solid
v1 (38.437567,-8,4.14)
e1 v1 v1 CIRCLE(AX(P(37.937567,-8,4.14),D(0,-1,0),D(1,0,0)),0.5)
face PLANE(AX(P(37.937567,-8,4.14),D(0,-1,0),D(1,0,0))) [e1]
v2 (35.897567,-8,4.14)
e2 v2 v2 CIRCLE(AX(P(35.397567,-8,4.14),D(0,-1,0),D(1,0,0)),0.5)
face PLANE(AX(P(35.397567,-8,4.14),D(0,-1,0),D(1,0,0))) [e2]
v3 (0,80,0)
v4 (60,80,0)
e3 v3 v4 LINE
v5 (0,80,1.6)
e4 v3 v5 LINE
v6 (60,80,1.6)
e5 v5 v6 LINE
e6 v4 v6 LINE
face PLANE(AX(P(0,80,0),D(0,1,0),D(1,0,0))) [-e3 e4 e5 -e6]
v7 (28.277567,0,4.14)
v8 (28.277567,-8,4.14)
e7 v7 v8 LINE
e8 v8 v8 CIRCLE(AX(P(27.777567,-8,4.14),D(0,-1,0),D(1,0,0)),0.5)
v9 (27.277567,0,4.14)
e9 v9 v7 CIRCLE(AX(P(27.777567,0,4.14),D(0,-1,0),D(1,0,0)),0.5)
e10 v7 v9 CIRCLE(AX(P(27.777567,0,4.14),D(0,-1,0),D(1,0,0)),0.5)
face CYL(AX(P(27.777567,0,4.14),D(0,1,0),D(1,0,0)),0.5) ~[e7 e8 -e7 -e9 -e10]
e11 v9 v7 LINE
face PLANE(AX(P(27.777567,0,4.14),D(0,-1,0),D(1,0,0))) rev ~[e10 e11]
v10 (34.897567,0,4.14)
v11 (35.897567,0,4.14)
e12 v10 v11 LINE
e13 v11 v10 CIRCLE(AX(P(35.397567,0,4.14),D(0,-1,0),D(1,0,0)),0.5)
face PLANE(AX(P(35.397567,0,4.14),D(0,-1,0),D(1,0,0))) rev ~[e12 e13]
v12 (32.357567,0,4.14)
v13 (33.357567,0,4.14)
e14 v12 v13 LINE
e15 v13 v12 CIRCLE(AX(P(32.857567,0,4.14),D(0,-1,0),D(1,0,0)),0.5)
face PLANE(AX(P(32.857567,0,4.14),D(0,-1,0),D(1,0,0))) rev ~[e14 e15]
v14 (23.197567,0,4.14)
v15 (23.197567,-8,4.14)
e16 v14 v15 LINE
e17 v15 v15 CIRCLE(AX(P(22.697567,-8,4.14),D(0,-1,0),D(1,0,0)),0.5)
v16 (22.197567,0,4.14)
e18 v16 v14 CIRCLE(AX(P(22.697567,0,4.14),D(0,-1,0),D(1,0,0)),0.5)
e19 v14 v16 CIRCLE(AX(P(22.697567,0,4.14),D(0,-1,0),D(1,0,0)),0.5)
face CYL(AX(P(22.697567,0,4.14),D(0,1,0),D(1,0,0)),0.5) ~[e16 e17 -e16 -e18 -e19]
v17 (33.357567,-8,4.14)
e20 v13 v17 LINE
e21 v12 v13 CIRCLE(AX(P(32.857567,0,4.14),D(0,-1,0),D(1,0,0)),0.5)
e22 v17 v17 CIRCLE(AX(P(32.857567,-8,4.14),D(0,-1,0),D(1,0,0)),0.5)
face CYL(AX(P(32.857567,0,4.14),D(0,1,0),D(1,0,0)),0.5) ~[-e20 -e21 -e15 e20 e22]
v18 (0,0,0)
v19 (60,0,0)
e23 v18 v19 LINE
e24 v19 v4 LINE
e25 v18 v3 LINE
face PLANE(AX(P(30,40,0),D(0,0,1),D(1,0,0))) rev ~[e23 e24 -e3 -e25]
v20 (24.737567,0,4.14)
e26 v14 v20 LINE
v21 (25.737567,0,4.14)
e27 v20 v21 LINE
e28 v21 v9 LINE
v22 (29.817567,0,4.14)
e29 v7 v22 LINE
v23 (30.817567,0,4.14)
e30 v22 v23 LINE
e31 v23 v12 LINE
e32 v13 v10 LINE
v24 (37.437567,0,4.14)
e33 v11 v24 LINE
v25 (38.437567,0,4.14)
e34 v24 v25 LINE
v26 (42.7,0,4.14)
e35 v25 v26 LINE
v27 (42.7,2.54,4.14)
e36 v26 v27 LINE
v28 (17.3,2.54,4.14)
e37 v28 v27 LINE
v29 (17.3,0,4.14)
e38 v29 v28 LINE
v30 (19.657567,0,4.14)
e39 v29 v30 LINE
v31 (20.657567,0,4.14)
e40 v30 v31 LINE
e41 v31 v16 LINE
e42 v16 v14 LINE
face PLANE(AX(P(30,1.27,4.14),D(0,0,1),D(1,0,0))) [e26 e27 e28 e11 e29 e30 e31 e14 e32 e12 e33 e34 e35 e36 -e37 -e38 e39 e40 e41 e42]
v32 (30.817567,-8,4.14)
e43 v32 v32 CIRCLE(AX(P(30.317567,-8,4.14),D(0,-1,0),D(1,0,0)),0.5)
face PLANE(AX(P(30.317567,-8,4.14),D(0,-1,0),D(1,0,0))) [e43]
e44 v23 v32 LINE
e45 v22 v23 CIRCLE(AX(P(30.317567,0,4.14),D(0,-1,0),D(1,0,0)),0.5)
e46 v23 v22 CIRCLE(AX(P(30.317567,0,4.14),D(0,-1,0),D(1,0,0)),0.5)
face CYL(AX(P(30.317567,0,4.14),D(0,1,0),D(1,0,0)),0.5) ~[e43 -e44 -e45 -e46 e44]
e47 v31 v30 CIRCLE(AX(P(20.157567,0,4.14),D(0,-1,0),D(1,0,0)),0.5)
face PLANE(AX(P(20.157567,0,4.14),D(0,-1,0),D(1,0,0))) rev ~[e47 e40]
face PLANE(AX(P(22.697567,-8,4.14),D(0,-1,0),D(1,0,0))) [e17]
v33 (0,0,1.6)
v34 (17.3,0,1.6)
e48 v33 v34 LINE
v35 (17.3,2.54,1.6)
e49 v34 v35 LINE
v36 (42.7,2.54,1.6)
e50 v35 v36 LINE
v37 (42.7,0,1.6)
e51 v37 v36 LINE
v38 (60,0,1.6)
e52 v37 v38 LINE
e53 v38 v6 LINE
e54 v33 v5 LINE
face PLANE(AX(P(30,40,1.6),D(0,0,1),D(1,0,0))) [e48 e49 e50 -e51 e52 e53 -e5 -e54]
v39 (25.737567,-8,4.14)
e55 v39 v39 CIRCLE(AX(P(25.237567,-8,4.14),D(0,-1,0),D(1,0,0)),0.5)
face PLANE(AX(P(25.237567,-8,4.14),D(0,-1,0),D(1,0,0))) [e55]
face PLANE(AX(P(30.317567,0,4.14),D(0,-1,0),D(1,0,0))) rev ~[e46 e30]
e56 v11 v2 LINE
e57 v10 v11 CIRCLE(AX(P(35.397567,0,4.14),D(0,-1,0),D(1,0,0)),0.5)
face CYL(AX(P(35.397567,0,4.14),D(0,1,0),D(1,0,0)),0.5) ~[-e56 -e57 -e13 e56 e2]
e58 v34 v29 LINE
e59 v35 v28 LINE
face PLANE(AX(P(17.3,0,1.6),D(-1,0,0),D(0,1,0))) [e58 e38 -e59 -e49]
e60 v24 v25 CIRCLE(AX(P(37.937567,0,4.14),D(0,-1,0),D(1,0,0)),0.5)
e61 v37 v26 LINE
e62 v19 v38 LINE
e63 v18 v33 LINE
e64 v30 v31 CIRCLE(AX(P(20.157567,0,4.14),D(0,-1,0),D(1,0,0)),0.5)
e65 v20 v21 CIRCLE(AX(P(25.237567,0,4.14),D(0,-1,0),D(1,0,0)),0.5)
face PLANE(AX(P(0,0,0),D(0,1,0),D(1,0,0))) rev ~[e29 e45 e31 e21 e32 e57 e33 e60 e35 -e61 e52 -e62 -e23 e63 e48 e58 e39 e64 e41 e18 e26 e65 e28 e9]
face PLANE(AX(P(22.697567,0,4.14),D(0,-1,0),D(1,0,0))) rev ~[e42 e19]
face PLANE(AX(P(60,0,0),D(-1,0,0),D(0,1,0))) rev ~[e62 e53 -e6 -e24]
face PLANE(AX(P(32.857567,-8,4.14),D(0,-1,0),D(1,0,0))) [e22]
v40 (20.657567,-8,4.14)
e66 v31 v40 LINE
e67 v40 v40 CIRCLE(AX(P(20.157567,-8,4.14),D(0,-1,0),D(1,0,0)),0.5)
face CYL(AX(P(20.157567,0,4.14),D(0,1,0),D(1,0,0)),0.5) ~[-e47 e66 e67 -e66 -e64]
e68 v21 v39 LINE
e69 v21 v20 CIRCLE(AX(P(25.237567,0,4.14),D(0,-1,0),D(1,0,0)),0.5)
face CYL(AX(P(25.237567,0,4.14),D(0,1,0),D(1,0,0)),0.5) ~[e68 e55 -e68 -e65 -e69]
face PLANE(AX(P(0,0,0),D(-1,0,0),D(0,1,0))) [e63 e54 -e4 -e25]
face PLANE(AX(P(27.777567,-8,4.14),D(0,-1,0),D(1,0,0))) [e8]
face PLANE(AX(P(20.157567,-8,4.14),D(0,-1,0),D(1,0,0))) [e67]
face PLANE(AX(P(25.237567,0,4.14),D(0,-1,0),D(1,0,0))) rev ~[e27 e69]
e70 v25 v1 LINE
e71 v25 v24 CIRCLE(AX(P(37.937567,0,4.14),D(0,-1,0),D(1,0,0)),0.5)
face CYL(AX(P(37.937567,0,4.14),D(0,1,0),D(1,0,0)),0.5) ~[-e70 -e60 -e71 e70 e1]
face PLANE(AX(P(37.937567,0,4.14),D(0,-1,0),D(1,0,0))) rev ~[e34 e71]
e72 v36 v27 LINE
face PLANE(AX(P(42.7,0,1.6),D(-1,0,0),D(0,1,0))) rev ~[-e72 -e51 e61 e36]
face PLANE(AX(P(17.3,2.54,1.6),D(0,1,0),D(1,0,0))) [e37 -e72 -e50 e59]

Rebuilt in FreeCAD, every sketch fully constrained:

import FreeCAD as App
import Part
import Sketcher

V = App.Vector

doc = App.newDocument("Part")
body = doc.addObject("PartDesign::Body", "Body")

sketch1 = doc.addObject("Sketcher::SketchObject", "Sketch")
body.addObject(sketch1)
sketch1.AttachmentSupport = (doc.XY_Plane, [""])
sketch1.MapMode = "FlatFace"
sketch1.addGeometry(Part.LineSegment(V(0, 80, 0), V(0, 0, 0)), False)
sketch1.addGeometry(Part.LineSegment(V(0, 0, 0), V(60, 0, 0)), False)
sketch1.addGeometry(Part.LineSegment(V(60, 0, 0), V(60, 80, 0)), False)
sketch1.addGeometry(Part.LineSegment(V(60, 80, 0), V(0, 80, 0)), False)
sketch1.addConstraint(Sketcher.Constraint("Coincident", 0, 2, 1, 1))
sketch1.addConstraint(Sketcher.Constraint("Coincident", 1, 2, 2, 1))
sketch1.addConstraint(Sketcher.Constraint("Coincident", 2, 2, 3, 1))
sketch1.addConstraint(Sketcher.Constraint("Coincident", 3, 2, 0, 1))
sketch1.addConstraint(Sketcher.Constraint("Vertical", 0))
sketch1.addConstraint(Sketcher.Constraint("Horizontal", 1))
sketch1.addConstraint(Sketcher.Constraint("Vertical", 2))
sketch1.addConstraint(Sketcher.Constraint("Horizontal", 3))
sketch1.addConstraint(Sketcher.Constraint("Coincident", 0, 2, -1, 1))
sketch1.addConstraint(Sketcher.Constraint("DistanceX", 1, 1, 1, 2, 60.0))
sketch1.addConstraint(Sketcher.Constraint("DistanceY", 0, 2, 0, 1, 80.0))
pad1 = doc.addObject("PartDesign::Pad", "Pad")
body.addObject(pad1)
pad1.Profile = sketch1
pad1.Length = 1.6

sketch2 = doc.addObject("Sketcher::SketchObject", "Sketch001")
body.addObject(sketch2)
sketch2.AttachmentSupport = (doc.XY_Plane, [""])
sketch2.MapMode = "FlatFace"
sketch2.AttachmentOffset = App.Placement(V(0, 0, 1.6), App.Rotation())
sketch2.addGeometry(Part.LineSegment(V(17.3, 2.5, 0), V(17.3, 0, 0)), False)
sketch2.addGeometry(Part.LineSegment(V(17.3, 0, 0), V(42.7, 0, 0)), False)
sketch2.addGeometry(Part.LineSegment(V(42.7, 0, 0), V(42.7, 2.5, 0)), False)
sketch2.addGeometry(Part.LineSegment(V(42.7, 2.5, 0), V(17.3, 2.5, 0)), False)
sketch2.addConstraint(Sketcher.Constraint("Coincident", 0, 2, 1, 1))
sketch2.addConstraint(Sketcher.Constraint("Coincident", 1, 2, 2, 1))
sketch2.addConstraint(Sketcher.Constraint("Coincident", 2, 2, 3, 1))
sketch2.addConstraint(Sketcher.Constraint("Coincident", 3, 2, 0, 1))
sketch2.addConstraint(Sketcher.Constraint("Vertical", 0))
sketch2.addConstraint(Sketcher.Constraint("Horizontal", 1))
sketch2.addConstraint(Sketcher.Constraint("Vertical", 2))
sketch2.addConstraint(Sketcher.Constraint("Horizontal", 3))
sketch2.addConstraint(Sketcher.Constraint("PointOnObject", 0, 2, -1))
sketch2.addConstraint(Sketcher.Constraint("DistanceX", 1, 1, 1, 2, 25.4))
sketch2.addConstraint(Sketcher.Constraint("DistanceY", 0, 2, 0, 1, 2.54))
sketch2.addConstraint(Sketcher.Constraint("DistanceX", -1, 1, 0, 2, 17.3))
pad2 = doc.addObject("PartDesign::Pad", "Pad001")
body.addObject(pad2)
pad2.Profile = sketch2
pad2.Length = 2.54

sketch3 = doc.addObject("Sketcher::SketchObject", "Sketch002")
body.addObject(sketch3)
sketch3.AttachmentSupport = (doc.XZ_Plane, [""])
sketch3.MapMode = "FlatFace"
sketch3.addGeometry(Part.Circle(V(20.2, 4.1, 0), V(0, 0, 1), 0.5), False)
sketch3.addGeometry(Part.Circle(V(22.7, 4.1, 0), V(0, 0, 1), 0.5), False)
sketch3.addGeometry(Part.Circle(V(25.2, 4.1, 0), V(0, 0, 1), 0.5), False)
sketch3.addGeometry(Part.Circle(V(27.8, 4.1, 0), V(0, 0, 1), 0.5), False)
sketch3.addGeometry(Part.Circle(V(30.3, 4.1, 0), V(0, 0, 1), 0.5), False)
sketch3.addGeometry(Part.Circle(V(32.9, 4.1, 0), V(0, 0, 1), 0.5), False)
sketch3.addGeometry(Part.Circle(V(35.4, 4.1, 0), V(0, 0, 1), 0.5), False)
sketch3.addGeometry(Part.Circle(V(37.9, 4.1, 0), V(0, 0, 1), 0.5), False)
sketch3.addConstraint(Sketcher.Constraint("Equal", 0, 1))
sketch3.addConstraint(Sketcher.Constraint("Equal", 1, 2))
sketch3.addConstraint(Sketcher.Constraint("Equal", 2, 3))
sketch3.addConstraint(Sketcher.Constraint("Equal", 3, 4))
sketch3.addConstraint(Sketcher.Constraint("Equal", 4, 5))
sketch3.addConstraint(Sketcher.Constraint("Equal", 5, 6))
sketch3.addConstraint(Sketcher.Constraint("Equal", 6, 7))
sketch3.addConstraint(Sketcher.Constraint("Horizontal", 0, 3, 1, 3))
sketch3.addConstraint(Sketcher.Constraint("Horizontal", 1, 3, 2, 3))
sketch3.addConstraint(Sketcher.Constraint("Horizontal", 2, 3, 3, 3))
sketch3.addConstraint(Sketcher.Constraint("Horizontal", 3, 3, 4, 3))
sketch3.addConstraint(Sketcher.Constraint("Horizontal", 4, 3, 5, 3))
sketch3.addConstraint(Sketcher.Constraint("Horizontal", 5, 3, 6, 3))
sketch3.addConstraint(Sketcher.Constraint("Horizontal", 6, 3, 7, 3))
sketch3.addConstraint(Sketcher.Constraint("Diameter", 0, 1.0))
sketch3.addConstraint(Sketcher.Constraint("DistanceX", 0, 3, 5, 3, 12.7))
sketch3.addConstraint(Sketcher.Constraint("DistanceX", 1, 3, 6, 3, 12.7))
sketch3.addConstraint(Sketcher.Constraint("DistanceX", 2, 3, 7, 3, 12.7))
sketch3.addConstraint(Sketcher.Constraint("DistanceY", -1, 1, 0, 3, 4.14))
sketch3.addConstraint(Sketcher.Constraint("DistanceX", 0, 3, 1, 3, 2.54))
sketch3.addConstraint(Sketcher.Constraint("DistanceX", 1, 3, 2, 3, 2.54))
sketch3.addConstraint(Sketcher.Constraint("DistanceX", 2, 3, 3, 3, 2.54))
sketch3.addConstraint(Sketcher.Constraint("DistanceX", 3, 3, 4, 3, 2.54))
sketch3.addConstraint(Sketcher.Constraint("DistanceX", -1, 1, 0, 3, 20.157567))
pad3 = doc.addObject("PartDesign::Pad", "Pad002")
body.addObject(pad3)
pad3.Profile = sketch3
pad3.Length = 8

doc.recompute()
